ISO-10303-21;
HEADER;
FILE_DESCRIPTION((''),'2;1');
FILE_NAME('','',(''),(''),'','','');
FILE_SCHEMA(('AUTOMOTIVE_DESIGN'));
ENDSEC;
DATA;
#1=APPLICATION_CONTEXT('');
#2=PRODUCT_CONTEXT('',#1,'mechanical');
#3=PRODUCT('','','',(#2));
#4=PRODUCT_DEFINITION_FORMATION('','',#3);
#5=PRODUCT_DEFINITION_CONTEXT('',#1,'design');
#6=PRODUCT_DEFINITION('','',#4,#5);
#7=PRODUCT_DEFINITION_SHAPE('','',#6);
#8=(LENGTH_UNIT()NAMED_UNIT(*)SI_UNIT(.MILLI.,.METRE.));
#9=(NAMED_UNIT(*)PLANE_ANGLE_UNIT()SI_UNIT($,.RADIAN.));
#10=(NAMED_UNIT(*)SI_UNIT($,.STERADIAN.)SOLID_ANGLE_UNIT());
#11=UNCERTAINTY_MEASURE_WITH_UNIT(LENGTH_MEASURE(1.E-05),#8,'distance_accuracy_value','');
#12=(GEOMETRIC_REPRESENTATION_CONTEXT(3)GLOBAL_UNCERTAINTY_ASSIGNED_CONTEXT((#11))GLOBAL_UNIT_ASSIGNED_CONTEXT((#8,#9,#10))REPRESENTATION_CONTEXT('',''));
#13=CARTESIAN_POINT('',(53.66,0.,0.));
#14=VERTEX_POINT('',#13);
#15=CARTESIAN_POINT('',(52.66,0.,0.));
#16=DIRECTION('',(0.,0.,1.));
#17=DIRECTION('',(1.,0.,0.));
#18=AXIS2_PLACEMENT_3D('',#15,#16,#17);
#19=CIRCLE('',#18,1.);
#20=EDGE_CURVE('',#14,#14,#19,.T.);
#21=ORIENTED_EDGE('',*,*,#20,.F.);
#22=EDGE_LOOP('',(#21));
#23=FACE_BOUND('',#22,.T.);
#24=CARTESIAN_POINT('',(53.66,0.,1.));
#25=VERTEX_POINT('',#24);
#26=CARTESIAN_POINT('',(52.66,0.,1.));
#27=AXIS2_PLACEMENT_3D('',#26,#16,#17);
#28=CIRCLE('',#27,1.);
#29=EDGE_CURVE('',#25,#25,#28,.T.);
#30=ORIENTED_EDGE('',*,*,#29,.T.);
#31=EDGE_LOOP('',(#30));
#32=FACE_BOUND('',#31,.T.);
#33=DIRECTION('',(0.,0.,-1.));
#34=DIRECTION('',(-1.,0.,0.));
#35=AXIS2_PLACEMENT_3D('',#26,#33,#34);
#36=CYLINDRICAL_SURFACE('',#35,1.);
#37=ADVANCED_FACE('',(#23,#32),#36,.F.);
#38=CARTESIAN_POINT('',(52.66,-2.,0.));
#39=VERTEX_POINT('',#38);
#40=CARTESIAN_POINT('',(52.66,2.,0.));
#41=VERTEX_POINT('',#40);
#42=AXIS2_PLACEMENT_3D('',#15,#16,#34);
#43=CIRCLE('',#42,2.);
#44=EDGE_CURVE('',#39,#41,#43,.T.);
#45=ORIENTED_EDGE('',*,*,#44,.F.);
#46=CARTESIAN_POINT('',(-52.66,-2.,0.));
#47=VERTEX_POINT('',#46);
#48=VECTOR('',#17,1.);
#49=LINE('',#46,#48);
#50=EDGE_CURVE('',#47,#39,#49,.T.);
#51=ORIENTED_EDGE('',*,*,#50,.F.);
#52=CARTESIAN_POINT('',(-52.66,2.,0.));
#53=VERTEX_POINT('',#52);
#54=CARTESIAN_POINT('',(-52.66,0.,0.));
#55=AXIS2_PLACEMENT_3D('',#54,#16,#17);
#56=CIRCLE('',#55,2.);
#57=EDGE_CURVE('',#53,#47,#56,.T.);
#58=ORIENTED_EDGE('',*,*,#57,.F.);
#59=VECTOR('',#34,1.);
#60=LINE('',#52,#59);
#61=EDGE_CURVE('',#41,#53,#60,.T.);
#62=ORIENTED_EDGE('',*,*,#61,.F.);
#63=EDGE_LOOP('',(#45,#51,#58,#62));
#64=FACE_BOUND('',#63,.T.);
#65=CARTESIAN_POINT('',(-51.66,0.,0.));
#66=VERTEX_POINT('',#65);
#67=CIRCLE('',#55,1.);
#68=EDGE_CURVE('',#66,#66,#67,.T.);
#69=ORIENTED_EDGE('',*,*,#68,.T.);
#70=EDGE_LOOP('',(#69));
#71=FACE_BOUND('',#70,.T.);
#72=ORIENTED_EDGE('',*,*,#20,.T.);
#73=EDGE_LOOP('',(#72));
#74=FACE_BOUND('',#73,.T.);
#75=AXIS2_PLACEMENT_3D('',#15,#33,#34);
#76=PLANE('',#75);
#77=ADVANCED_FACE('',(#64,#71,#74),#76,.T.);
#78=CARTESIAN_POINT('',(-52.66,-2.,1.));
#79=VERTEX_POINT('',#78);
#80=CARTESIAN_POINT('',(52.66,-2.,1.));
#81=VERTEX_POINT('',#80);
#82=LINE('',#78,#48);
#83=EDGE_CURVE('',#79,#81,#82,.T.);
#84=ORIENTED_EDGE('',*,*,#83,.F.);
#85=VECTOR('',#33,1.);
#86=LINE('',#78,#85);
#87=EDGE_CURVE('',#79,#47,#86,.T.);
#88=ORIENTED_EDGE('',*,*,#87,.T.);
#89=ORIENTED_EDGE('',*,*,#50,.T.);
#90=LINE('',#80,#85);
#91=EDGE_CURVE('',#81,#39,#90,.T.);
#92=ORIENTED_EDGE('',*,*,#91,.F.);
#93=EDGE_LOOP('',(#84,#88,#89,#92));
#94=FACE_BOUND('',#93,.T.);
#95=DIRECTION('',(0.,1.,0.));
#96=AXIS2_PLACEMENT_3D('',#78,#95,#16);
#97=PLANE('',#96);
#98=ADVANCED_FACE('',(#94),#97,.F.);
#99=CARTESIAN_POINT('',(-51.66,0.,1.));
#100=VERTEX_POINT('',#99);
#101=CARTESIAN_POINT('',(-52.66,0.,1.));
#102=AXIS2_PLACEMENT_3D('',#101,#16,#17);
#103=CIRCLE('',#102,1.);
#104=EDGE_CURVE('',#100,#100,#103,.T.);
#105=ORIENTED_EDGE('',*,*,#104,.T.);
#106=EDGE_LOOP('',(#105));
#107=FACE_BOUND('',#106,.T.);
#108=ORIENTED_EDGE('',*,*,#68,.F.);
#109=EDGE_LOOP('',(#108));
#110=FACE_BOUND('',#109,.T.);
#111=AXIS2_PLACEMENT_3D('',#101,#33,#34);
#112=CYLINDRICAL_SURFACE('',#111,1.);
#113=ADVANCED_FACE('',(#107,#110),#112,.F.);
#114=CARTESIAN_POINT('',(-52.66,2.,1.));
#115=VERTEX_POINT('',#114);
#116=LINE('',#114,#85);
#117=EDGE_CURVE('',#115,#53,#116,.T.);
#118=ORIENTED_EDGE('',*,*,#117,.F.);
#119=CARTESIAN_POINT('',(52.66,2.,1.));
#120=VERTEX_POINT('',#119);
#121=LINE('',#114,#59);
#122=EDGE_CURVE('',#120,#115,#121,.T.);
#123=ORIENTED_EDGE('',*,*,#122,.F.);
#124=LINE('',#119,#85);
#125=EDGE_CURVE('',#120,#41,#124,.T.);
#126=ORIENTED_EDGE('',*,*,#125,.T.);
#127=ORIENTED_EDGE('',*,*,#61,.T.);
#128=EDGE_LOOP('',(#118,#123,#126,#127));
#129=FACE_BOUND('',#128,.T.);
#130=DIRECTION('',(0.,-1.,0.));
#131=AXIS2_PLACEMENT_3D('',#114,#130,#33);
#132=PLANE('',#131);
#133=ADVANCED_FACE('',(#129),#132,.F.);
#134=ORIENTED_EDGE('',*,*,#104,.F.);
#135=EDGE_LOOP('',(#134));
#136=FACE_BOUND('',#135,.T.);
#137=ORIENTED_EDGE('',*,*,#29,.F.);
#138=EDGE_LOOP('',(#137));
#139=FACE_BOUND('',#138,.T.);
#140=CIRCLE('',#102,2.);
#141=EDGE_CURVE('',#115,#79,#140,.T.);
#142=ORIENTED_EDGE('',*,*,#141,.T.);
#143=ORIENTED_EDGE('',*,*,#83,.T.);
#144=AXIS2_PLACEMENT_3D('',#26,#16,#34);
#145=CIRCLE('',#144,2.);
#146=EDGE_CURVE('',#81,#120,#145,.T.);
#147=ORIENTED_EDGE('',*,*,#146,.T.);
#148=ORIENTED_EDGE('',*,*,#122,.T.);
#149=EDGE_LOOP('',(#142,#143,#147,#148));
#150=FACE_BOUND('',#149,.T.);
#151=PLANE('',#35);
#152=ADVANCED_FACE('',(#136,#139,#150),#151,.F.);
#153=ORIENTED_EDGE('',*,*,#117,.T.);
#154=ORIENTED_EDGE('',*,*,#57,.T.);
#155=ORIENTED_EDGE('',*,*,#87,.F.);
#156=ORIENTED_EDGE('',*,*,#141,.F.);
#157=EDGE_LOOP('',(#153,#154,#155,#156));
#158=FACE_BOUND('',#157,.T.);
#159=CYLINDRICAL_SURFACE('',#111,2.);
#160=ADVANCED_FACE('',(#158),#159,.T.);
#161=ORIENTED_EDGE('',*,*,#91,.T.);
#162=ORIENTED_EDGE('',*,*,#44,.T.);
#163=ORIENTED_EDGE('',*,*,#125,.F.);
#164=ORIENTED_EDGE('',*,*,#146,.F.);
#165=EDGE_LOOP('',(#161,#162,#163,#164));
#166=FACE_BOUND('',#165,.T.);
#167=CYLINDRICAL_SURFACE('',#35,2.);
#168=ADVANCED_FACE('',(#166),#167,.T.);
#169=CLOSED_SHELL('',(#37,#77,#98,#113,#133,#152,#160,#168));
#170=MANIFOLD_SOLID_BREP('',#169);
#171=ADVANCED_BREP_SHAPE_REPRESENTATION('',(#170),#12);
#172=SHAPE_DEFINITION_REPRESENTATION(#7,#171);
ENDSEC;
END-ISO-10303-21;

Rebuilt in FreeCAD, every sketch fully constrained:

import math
import FreeCAD as App
import Part
import Sketcher
from FreeCAD import Vector

doc = App.newDocument("Part")
body = doc.addObject("PartDesign::Body", "Body")

sketch1 = body.newObject("Sketcher::SketchObject", "Sketch")
sketch1.AttachmentSupport = (doc.getObject("XY_Plane"), [""])
sketch1.MapMode = "FlatFace"
sketch1.addGeometry([
    Part.LineSegment(Vector(52.7, 2, 0), Vector(-52.7, 2, 0)),
    Part.ArcOfCircle(Part.Circle(Vector(-52.7, 0, 0), Vector(0, 0, 1), 2), math.radians(90), math.radians(270)),
    Part.LineSegment(Vector(-52.7, -2, 0), Vector(52.7, -2, 0)),
    Part.ArcOfCircle(Part.Circle(Vector(52.7, 0, 0), Vector(0, 0, 1), 2), math.radians(-90), math.radians(90)),
    Part.Circle(Vector(52.7, 0, 0), Vector(0, 0, 1), 1),
    Part.Circle(Vector(-52.7, 0, 0), Vector(0, 0, 1), 1),
], False)
sketch1.addConstraint([
    Sketcher.Constraint("Tangent", 0, 2, 1, 1),
    Sketcher.Constraint("Tangent", 1, 2, 2, 1),
    Sketcher.Constraint("Tangent", 2, 2, 3, 1),
    Sketcher.Constraint("Tangent", 3, 2, 0, 1),
    Sketcher.Constraint("Horizontal", 0),
    Sketcher.Constraint("Horizontal", 2),
    Sketcher.Constraint("Coincident", 4, 3, 3, 3),
    Sketcher.Constraint("Coincident", 5, 3, 1, 3),
    Sketcher.Constraint("Equal", 4, 5),
    Sketcher.Constraint("Symmetric", 1, 3, 3, 3, -1, 1),
    Sketcher.Constraint("Diameter", 4, 2.0),
    Sketcher.Constraint("Radius", 1, 2.0),
    Sketcher.Constraint("DistanceX", 0, 2, 0, 1, 105.32),
])
pad1 = body.newObject("PartDesign::Pad", "Pad")
pad1.Profile = sketch1
pad1.Length = 1

doc.recompute()
